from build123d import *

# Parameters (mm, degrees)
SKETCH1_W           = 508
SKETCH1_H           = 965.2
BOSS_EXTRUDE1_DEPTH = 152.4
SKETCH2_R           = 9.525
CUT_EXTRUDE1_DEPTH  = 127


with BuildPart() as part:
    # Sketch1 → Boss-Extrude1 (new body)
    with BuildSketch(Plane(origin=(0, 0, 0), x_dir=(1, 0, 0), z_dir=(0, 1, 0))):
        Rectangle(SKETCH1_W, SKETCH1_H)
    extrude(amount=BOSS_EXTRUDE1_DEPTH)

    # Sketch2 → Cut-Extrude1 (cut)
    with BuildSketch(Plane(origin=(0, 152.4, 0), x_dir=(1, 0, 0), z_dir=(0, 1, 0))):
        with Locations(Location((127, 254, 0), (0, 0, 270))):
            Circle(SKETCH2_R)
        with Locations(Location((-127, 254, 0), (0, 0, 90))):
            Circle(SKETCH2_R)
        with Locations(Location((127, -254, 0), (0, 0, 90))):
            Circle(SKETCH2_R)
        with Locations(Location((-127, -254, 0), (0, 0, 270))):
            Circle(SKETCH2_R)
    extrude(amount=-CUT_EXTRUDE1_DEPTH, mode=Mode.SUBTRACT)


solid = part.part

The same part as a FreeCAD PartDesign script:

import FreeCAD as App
import Part
import Sketcher
Q = App.Units.Quantity


def add_polygon(sketch, points):
    """Adds a closed chain of lines whose ends are joined by coincident constraints."""
    first, n = sketch.GeometryCount, len(points)
    for a, b in zip(points, points[1:] + points[:1]):
        sketch.addGeometry(Part.LineSegment(App.Vector(*a, 0), App.Vector(*b, 0)), False)
    for i in range(n):
        sketch.addConstraint(Sketcher.Constraint("Coincident", first + i, 2, first + (i + 1) % n, 1))

doc = App.newDocument("Part")
params = doc.addObject("Spreadsheet::Sheet", "Params")
for row, (alias, value) in enumerate([
    ("sketch1_width", "20 in"),
    ("sketch1_height", "38 in"),
    ("pad1_length", "6 in"),
    ("sketch2_diameter", "0.75 in"),
    ("pocket1_length", "5 in"),
], start=1):
    params.set(f"A{row}", alias)
    params.set(f"B{row}", "=" + value)
    params.setAlias(f"B{row}", alias)

body = doc.addObject("PartDesign::Body", "Body")

# Sketch on XZ plane
sketch1 = doc.addObject("Sketcher::SketchObject", "Sketch")
body.addObject(sketch1)
sketch1.AttachmentSupport = (doc.XZ_Plane, [""])
sketch1.MapMode = "FlatFace"
add_polygon(sketch1, [(-254, -483), (-254, 483), (254, 483), (254, -483)])  # lines 0-3
sketch1.addConstraint([
    Sketcher.Constraint("Vertical", 0),
    Sketcher.Constraint("Horizontal", 1),
    Sketcher.Constraint("Vertical", 2),
    Sketcher.Constraint("Horizontal", 3),
    Sketcher.Constraint("Symmetric", 0, 2, 2, 2, -1, 1),
    Sketcher.Constraint("DistanceX", 1, 1, 1, 2, Q("20 in")),
    Sketcher.Constraint("DistanceY", 0, 1, 0, 2, Q("38 in")),
])
sketch1.setExpression("Constraints[9]", "Params.sketch1_width")
sketch1.setExpression("Constraints[10]", "Params.sketch1_height")
pad1 = doc.addObject("PartDesign::Pad", "Pad")
body.addObject(pad1)
pad1.Profile = sketch1
pad1.setExpression("Length", "Params.pad1_length")
pad1.Reversed = True

# Sketch on XZ plane
sketch2 = doc.addObject("Sketcher::SketchObject", "Sketch001")
body.addObject(sketch2)
sketch2.AttachmentSupport = (doc.XZ_Plane, [""])
sketch2.MapMode = "FlatFace"
sketch2.AttachmentOffset = App.Placement(App.Vector(0, 0, -6 * 25.4), App.Rotation())
sketch2.addGeometry([
    Part.Circle(App.Vector(127, -254, 0), App.Vector(0, 0, 1), 10),
    Part.Circle(App.Vector(-127, -254, 0), App.Vector(0, 0, 1), 10),
    Part.Circle(App.Vector(127, 254, 0), App.Vector(0, 0, 1), 10),
    Part.Circle(App.Vector(-127, 254, 0), App.Vector(0, 0, 1), 10),
], False)
sketch2.addConstraint([
    Sketcher.Constraint("Equal", 0, 1),
    Sketcher.Constraint("Equal", 1, 2),
    Sketcher.Constraint("Equal", 2, 3),
    Sketcher.Constraint("Symmetric", 1, 3, 2, 3, -1, 1),
    Sketcher.Constraint("Symmetric", 0, 3, 3, 3, -1, 1),
    Sketcher.Constraint("Symmetric", 0, 3, 1, 3, -2),
    Sketcher.Constraint("Diameter", 0, Q("0.75 in")),
    Sketcher.Constraint("DistanceX", -1, 1, 0, 3, Q("5 in")),
    Sketcher.Constraint("DistanceY", 0, 3, -1, 1, Q("10 in")),
])
sketch2.setExpression("Constraints[6]", "Params.sketch2_diameter")
pocket1 = doc.addObject("PartDesign::Pocket", "Pocket")
body.addObject(pocket1)
pocket1.Profile = sketch2
pocket1.setExpression("Length", "Params.pocket1_length")
pocket1.Reversed = True

doc.recompute()
